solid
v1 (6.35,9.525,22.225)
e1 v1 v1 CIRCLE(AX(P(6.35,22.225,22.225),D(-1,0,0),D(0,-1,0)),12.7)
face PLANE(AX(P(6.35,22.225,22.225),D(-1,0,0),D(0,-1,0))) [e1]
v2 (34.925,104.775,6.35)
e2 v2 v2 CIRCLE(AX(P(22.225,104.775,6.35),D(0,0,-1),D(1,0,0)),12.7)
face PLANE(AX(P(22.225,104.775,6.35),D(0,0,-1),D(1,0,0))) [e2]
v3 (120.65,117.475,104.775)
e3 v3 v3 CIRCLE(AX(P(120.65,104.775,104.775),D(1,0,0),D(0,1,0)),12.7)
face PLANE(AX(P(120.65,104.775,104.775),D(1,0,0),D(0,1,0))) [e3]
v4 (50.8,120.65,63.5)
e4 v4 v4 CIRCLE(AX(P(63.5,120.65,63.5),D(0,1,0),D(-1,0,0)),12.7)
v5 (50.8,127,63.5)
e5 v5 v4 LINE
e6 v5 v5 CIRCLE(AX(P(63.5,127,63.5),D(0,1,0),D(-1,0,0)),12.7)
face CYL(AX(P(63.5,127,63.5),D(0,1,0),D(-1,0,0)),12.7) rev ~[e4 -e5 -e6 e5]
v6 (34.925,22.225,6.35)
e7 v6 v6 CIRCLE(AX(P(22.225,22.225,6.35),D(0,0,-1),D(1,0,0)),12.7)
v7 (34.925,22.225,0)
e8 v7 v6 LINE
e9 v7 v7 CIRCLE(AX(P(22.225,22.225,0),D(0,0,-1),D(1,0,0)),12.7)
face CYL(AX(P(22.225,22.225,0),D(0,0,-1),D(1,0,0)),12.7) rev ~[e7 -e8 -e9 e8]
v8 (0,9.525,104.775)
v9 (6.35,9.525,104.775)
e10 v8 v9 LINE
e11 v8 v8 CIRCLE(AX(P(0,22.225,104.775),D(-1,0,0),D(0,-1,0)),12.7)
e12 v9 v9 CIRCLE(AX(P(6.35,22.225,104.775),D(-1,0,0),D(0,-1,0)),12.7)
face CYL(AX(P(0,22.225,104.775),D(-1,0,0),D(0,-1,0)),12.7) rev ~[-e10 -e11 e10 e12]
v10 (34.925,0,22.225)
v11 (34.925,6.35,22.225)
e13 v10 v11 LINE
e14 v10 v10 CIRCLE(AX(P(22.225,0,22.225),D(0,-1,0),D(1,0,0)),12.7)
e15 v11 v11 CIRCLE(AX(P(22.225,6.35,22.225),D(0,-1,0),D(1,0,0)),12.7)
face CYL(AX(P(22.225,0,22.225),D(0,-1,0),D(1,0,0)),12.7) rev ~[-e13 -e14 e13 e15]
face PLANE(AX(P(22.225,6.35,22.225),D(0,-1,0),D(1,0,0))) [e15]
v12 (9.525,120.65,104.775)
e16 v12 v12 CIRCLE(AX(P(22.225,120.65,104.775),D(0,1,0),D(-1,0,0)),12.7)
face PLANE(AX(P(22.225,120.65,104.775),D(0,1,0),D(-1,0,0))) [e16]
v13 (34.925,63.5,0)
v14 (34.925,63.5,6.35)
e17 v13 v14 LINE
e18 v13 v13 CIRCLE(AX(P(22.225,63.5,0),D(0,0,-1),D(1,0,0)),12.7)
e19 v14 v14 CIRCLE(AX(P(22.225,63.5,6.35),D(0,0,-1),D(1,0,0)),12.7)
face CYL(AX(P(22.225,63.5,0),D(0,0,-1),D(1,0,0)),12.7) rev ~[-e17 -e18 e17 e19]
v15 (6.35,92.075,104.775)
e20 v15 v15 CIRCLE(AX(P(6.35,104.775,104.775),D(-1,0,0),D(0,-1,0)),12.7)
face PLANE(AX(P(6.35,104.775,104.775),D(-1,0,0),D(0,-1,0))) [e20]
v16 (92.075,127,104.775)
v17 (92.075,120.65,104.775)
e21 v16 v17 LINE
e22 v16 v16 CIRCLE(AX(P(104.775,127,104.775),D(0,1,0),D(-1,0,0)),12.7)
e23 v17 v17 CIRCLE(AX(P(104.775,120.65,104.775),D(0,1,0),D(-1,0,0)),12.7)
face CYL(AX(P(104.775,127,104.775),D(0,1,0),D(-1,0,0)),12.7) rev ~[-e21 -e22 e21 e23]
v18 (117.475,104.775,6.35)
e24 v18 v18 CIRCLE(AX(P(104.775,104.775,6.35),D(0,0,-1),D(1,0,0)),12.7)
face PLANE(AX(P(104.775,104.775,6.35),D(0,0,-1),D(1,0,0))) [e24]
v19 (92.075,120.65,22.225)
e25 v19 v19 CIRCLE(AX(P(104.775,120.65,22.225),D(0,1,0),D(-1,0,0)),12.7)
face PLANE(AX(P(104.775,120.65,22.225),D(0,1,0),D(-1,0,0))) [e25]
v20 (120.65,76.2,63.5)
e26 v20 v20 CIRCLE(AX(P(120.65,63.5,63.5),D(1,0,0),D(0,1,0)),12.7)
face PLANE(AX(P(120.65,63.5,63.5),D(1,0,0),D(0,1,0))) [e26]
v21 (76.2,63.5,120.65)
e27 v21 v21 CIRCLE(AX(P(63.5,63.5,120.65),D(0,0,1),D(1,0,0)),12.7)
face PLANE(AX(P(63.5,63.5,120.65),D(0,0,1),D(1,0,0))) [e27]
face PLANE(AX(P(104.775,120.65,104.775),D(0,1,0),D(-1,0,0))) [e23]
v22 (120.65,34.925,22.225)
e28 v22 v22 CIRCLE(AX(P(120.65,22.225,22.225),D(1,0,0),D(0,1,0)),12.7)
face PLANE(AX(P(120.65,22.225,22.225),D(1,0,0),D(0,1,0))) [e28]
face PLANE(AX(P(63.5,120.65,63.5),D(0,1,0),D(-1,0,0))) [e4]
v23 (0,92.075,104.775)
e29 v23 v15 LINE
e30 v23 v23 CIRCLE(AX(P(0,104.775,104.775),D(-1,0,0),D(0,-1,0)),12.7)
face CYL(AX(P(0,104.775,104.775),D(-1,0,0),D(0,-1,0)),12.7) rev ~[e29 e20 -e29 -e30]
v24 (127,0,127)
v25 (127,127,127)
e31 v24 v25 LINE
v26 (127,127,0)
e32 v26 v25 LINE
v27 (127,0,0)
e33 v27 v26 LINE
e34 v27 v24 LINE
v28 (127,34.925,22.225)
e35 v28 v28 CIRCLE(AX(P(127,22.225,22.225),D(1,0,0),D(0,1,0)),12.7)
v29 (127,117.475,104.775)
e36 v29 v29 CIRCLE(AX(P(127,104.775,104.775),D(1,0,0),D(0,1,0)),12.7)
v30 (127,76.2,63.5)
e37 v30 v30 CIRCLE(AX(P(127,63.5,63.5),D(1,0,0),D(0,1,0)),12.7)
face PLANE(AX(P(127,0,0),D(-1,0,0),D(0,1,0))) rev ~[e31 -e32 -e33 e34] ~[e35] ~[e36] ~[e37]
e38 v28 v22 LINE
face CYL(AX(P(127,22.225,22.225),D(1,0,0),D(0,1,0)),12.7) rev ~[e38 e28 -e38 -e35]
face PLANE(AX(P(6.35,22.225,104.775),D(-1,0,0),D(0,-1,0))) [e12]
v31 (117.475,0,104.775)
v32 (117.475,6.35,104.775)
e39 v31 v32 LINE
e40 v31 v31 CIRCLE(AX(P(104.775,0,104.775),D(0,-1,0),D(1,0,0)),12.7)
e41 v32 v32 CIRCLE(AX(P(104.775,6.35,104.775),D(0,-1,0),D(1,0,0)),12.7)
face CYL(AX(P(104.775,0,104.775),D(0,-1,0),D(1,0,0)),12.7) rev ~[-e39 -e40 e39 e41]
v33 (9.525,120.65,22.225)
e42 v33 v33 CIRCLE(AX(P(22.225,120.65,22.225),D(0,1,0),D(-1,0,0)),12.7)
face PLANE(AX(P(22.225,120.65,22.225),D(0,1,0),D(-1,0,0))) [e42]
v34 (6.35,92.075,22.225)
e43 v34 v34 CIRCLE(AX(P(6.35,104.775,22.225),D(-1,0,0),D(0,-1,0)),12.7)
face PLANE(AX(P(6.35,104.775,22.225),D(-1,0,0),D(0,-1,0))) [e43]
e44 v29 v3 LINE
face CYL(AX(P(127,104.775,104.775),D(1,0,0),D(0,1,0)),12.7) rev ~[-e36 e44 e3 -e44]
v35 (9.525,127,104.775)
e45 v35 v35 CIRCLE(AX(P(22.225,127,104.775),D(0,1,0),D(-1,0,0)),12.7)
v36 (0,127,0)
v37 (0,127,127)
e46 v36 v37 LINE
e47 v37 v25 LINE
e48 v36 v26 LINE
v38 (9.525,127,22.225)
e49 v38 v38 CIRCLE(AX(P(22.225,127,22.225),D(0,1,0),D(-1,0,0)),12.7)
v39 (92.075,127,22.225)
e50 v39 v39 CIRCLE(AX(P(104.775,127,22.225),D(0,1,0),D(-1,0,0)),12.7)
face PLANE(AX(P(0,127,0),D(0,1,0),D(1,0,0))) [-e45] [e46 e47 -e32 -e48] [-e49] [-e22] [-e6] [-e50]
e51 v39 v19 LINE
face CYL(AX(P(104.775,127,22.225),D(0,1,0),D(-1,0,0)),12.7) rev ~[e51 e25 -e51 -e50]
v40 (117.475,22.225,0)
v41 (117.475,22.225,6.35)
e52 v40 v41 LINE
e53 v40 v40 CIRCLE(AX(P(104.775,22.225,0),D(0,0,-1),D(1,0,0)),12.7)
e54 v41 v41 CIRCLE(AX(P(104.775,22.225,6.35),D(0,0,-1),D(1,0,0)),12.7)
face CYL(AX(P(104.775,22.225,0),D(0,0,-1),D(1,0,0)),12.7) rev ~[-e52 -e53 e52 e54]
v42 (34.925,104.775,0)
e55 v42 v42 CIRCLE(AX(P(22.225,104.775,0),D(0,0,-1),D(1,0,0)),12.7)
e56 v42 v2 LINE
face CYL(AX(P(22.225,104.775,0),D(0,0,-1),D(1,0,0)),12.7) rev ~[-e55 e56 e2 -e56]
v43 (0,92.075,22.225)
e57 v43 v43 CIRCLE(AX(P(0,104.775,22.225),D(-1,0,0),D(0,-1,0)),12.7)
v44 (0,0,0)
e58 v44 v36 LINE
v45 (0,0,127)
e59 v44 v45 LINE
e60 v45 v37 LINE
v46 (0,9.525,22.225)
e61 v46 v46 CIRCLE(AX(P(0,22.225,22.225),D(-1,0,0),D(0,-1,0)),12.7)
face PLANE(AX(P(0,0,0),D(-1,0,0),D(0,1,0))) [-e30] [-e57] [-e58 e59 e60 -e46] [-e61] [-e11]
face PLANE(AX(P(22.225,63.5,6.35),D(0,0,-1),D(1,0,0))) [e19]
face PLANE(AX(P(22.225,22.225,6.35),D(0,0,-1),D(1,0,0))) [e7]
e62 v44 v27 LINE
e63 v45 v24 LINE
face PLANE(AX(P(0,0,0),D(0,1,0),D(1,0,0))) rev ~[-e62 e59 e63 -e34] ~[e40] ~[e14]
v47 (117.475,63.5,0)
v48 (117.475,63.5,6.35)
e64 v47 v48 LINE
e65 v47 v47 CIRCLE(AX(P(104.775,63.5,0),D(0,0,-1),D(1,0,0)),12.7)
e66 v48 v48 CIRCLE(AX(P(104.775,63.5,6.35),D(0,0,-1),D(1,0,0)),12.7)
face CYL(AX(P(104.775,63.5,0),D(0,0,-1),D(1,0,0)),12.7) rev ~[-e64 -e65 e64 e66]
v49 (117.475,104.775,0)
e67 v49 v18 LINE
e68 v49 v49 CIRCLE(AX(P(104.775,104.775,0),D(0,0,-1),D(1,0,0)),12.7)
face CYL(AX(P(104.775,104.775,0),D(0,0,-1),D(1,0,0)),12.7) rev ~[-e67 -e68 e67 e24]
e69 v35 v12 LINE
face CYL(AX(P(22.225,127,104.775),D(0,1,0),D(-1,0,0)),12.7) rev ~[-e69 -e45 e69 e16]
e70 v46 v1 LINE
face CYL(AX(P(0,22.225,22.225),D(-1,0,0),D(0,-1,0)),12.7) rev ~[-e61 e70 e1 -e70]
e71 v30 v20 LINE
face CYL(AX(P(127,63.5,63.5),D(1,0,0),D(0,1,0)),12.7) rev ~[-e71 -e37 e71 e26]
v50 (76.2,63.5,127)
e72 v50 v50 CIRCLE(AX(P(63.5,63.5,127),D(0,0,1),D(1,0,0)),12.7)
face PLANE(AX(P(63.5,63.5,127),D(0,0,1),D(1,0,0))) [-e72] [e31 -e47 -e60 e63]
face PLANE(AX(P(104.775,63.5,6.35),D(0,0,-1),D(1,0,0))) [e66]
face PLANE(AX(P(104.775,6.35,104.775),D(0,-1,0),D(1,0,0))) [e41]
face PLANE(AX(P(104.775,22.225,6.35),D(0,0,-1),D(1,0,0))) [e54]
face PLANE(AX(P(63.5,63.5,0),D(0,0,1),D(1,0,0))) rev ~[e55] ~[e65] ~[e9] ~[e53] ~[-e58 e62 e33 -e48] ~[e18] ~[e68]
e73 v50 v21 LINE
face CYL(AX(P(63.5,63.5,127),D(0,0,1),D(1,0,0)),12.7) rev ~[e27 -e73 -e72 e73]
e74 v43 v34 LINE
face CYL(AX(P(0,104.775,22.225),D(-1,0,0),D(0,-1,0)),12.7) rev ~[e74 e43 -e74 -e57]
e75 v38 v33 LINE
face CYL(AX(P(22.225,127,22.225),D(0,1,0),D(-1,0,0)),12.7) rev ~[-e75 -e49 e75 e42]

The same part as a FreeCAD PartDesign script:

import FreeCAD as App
import Part
import Sketcher

V = App.Vector
Q = App.Units.Quantity

doc = App.newDocument("Part")
body = doc.addObject("PartDesign::Body", "Body")

sketch1 = body.newObject("Sketcher::SketchObject", "Sketch")
sketch1.AttachmentSupport = (doc.getObject("XY_Plane"), [""])
sketch1.MapMode = "FlatFace"
sketch1.addGeometry([
    Part.LineSegment(V(0, 127, 0), V(0, 0, 0)),
    Part.LineSegment(V(0, 0, 0), V(127, 0, 0)),
    Part.LineSegment(V(127, 0, 0), V(127, 127, 0)),
    Part.LineSegment(V(127, 127, 0), V(0, 127, 0)),
], False)
sketch1.addConstraint([
    Sketcher.Constraint("Coincident", 0, 2, 1, 1),
    Sketcher.Constraint("Coincident", 1, 2, 2, 1),
    Sketcher.Constraint("Coincident", 2, 2, 3, 1),
    Sketcher.Constraint("Coincident", 3, 2, 0, 1),
    Sketcher.Constraint("Vertical", 0),
    Sketcher.Constraint("Horizontal", 1),
    Sketcher.Constraint("Vertical", 2),
    Sketcher.Constraint("Horizontal", 3),
    Sketcher.Constraint("Coincident", 0, 2, -1, 1),
    Sketcher.Constraint("Equal", 3, 0),
    Sketcher.Constraint("DistanceX", 1, 1, 1, 2, Q("5 in")),
])
pad1 = body.newObject("PartDesign::Pad", "Pad")
pad1.Profile = sketch1
pad1.Length = Q("5 in")

sketch2 = body.newObject("Sketcher::SketchObject", "Sketch001")
sketch2.AttachmentSupport = (doc.getObject("XY_Plane"), [""])
sketch2.MapMode = "FlatFace"
sketch2.AttachmentOffset = App.Placement(V(0, 0, 5 * 25.4), App.Rotation())
sketch2.addGeometry(Part.Circle(V(63.5, 63.5, 0), V(0, 0, 1), 12.7), False)
sketch2.addConstraint([
    Sketcher.Constraint("Diameter", 0, Q("1 in")),
    Sketcher.Constraint("DistanceX", -1, 1, 0, 3, Q("2.5 in")),
    Sketcher.Constraint("DistanceY", -1, 1, 0, 3, Q("2.5 in")),
])
pocket1 = body.newObject("PartDesign::Pocket", "Pocket")
pocket1.Profile = sketch2
pocket1.Length = Q("0.25 in")

sketch3 = body.newObject("Sketcher::SketchObject", "Sketch002")
sketch3.AttachmentSupport = (doc.getObject("XZ_Plane"), [""])
sketch3.MapMode = "FlatFace"
sketch3.addGeometry([
    Part.Circle(V(22.225, 22.225, 0), V(0, 0, 1), 12.7),
    Part.Circle(V(104.775, 104.775, 0), V(0, 0, 1), 12.7),
], False)
sketch3.addConstraint([
    Sketcher.Constraint("Equal", 0, 1),
    Sketcher.Constraint("Diameter", 0, Q("1 in")),
    Sketcher.Constraint("DistanceX", 0, 3, 1, 3, Q("3.25 in")),
    Sketcher.Constraint("DistanceY", 0, 3, 1, 3, Q("3.25 in")),
    Sketcher.Constraint("DistanceX", -1, 1, 0, 3, Q("0.875 in")),
    Sketcher.Constraint("DistanceY", -1, 1, 0, 3, Q("0.875 in")),
])
pocket2 = body.newObject("PartDesign::Pocket", "Pocket001")
pocket2.Profile = sketch3
pocket2.Length = Q("0.25 in")

sketch4 = body.newObject("Sketcher::SketchObject", "Sketch003")
sketch4.AttachmentSupport = (doc.getObject("YZ_Plane"), [""])
sketch4.MapMode = "FlatFace"
sketch4.AttachmentOffset = App.Placement(V(0, 0, 5 * 25.4), App.Rotation())
sketch4.addGeometry([
    Part.Circle(V(22.225, 22.225, 0), V(0, 0, 1), 12.7),
    Part.Circle(V(63.5, 63.5, 0), V(0, 0, 1), 12.7),
    Part.Circle(V(104.775, 104.775, 0), V(0, 0, 1), 12.7),
], False)
sketch4.addConstraint([
    Sketcher.Constraint("Equal", 0, 1),
    Sketcher.Constraint("Equal", 1, 2),
    Sketcher.Constraint("Diameter", 0, Q("1 in")),
    Sketcher.Constraint("DistanceX", -1, 1, 1, 3, Q("2.5 in")),
    Sketcher.Constraint("DistanceY", -1, 1, 1, 3, Q("2.5 in")),
    Sketcher.Constraint("DistanceX", 0, 3, 2, 3, Q("3.25 in")),
    Sketcher.Constraint("DistanceY", 0, 3, 2, 3, Q("3.25 in")),
    Sketcher.Constraint("DistanceX", -1, 1, 0, 3, Q("0.875 in")),
    Sketcher.Constraint("DistanceY", -1, 1, 0, 3, Q("0.875 in")),
])
pocket3 = body.newObject("PartDesign::Pocket", "Pocket002")
pocket3.Profile = sketch4
pocket3.Length = Q("0.25 in")

sketch5 = body.newObject("Sketcher::SketchObject", "Sketch004")
sketch5.AttachmentSupport = (doc.getObject("YZ_Plane"), [""])
sketch5.MapMode = "FlatFace"
sketch5.addGeometry([
    Part.Circle(V(104.775, 22.225, 0), V(0, 0, 1), 12.7),
    Part.Circle(V(22.225, 22.225, 0), V(0, 0, 1), 12.7),
    Part.Circle(V(22.225, 104.775, 0), V(0, 0, 1), 12.7),
    Part.Circle(V(104.775, 104.775, 0), V(0, 0, 1), 12.7),
], False)
sketch5.addConstraint([
    Sketcher.Constraint("Equal", 0, 1),
    Sketcher.Constraint("Equal", 1, 2),
    Sketcher.Constraint("Equal", 2, 3),
    Sketcher.Constraint("Horizontal", 0, 3, 1, 3),
    Sketcher.Constraint("Horizontal", 2, 3, 3, 3),
    Sketcher.Constraint("Vertical", 1, 3, 2, 3),
    Sketcher.Constraint("Vertical", 0, 3, 3, 3),
    Sketcher.Constraint("Diameter", 0, Q("1 in")),
    Sketcher.Constraint("DistanceX", 1, 3, 0, 3, Q("3.25 in")),
    Sketcher.Constraint("DistanceY", 1, 3, 2, 3, Q("3.25 in")),
    Sketcher.Constraint("DistanceX", -1, 1, 0, 3, Q("4.125 in")),
    Sketcher.Constraint("DistanceY", -1, 1, 0, 3, Q("0.875 in")),
])
pocket4 = body.newObject("PartDesign::Pocket", "Pocket003")
pocket4.Profile = sketch5
pocket4.Length = Q("0.25 in")
pocket4.Reversed = True

sketch6 = body.newObject("Sketcher::SketchObject", "Sketch005")
sketch6.AttachmentSupport = (doc.getObject("XZ_Plane"), [""])
sketch6.MapMode = "FlatFace"
sketch6.AttachmentOffset = App.Placement(V(0, 0, -5 * 25.4), App.Rotation())
sketch6.addGeometry([
    Part.Circle(V(104.775, 22.225, 0), V(0, 0, 1), 12.7),
    Part.Circle(V(22.225, 22.225, 0), V(0, 0, 1), 12.7),
    Part.Circle(V(22.225, 104.775, 0), V(0, 0, 1), 12.7),
    Part.Circle(V(104.775, 104.775, 0), V(0, 0, 1), 12.7),
    Part.Circle(V(63.5, 63.5, 0), V(0, 0, 1), 12.7),
], False)
sketch6.addConstraint([
    Sketcher.Constraint("Equal", 0, 1),
    Sketcher.Constraint("Equal", 1, 2),
    Sketcher.Constraint("Equal", 2, 3),
    Sketcher.Constraint("Equal", 3, 4),
    Sketcher.Constraint("Horizontal", 0, 3, 1, 3),
    Sketcher.Constraint("Horizontal", 2, 3, 3, 3),
    Sketcher.Constraint("Vertical", 1, 3, 2, 3),
    Sketcher.Constraint("Vertical", 0, 3, 3, 3),
    Sketcher.Constraint("Diameter", 0, Q("1 in")),
    Sketcher.Constraint("DistanceX", -1, 1, 4, 3, Q("2.5 in")),
    Sketcher.Constraint("DistanceY", -1, 1, 4, 3, Q("2.5 in")),
    Sketcher.Constraint("DistanceX", 1, 3, 0, 3, Q("3.25 in")),
    Sketcher.Constraint("DistanceY", 1, 3, 2, 3, Q("3.25 in")),
    Sketcher.Constraint("DistanceX", -1, 1, 0, 3, Q("4.125 in")),
    Sketcher.Constraint("DistanceY", -1, 1, 0, 3, Q("0.875 in")),
])
pocket5 = body.newObject("PartDesign::Pocket", "Pocket004")
pocket5.Profile = sketch6
pocket5.Length = Q("0.25 in")
pocket5.Reversed = True

sketch7 = body.newObject("Sketcher::SketchObject", "Sketch006")
sketch7.AttachmentSupport = (doc.getObject("XY_Plane"), [""])
sketch7.MapMode = "FlatFace"
sketch7.addGeometry([
    Part.Circle(V(22.225, 63.5, 0), V(0, 0, 1), 12.7),
    Part.Circle(V(104.775, 104.775, 0), V(0, 0, 1), 12.7),
    Part.Circle(V(104.775, 63.5, 0), V(0, 0, 1), 12.7),
    Part.Circle(V(104.775, 22.225, 0), V(0, 0, 1), 12.7),
    Part.Circle(V(22.225, 104.775, 0), V(0, 0, 1), 12.7),
    Part.Circle(V(22.225, 22.225, 0), V(0, 0, 1), 12.7),
], False)
sketch7.addConstraint([
    Sketcher.Constraint("Equal", 0, 1),
    Sketcher.Constraint("Equal", 1, 2),
    Sketcher.Constraint("Equal", 2, 3),
    Sketcher.Constraint("Equal", 3, 4),
    Sketcher.Constraint("Equal", 4, 5),
    Sketcher.Constraint("Horizontal", 0, 3, 2, 3),
    Sketcher.Constraint("Horizontal", 1, 3, 4, 3),
    Sketcher.Constraint("Horizontal", 3, 3, 5, 3),
    Sketcher.Constraint("Vertical", 1, 3, 2, 3),
    Sketcher.Constraint("Vertical", 2, 3, 3, 3),
    Sketcher.Constraint("Vertical", 0, 3, 4, 3),
    Sketcher.Constraint("Vertical", 4, 3, 5, 3),
    Sketcher.Constraint("Diameter", 0, Q("1 in")),
    Sketcher.Constraint("DistanceY", -1, 1, 0, 3, Q("2.5 in")),
    Sketcher.Constraint("DistanceX", 0, 3, 1, 3, Q("3.25 in")),
    Sketcher.Constraint("DistanceY", 3, 3, 1, 3, Q("3.25 in")),
    Sketcher.Constraint("DistanceX", -1, 1, 0, 3, Q("0.875 in")),
    Sketcher.Constraint("DistanceY", -1, 1, 1, 3, Q("4.125 in")),
])
pocket6 = body.newObject("PartDesign::Pocket", "Pocket005")
pocket6.Profile = sketch7
pocket6.Length = Q("0.25 in")
pocket6.Reversed = True

doc.recompute()
